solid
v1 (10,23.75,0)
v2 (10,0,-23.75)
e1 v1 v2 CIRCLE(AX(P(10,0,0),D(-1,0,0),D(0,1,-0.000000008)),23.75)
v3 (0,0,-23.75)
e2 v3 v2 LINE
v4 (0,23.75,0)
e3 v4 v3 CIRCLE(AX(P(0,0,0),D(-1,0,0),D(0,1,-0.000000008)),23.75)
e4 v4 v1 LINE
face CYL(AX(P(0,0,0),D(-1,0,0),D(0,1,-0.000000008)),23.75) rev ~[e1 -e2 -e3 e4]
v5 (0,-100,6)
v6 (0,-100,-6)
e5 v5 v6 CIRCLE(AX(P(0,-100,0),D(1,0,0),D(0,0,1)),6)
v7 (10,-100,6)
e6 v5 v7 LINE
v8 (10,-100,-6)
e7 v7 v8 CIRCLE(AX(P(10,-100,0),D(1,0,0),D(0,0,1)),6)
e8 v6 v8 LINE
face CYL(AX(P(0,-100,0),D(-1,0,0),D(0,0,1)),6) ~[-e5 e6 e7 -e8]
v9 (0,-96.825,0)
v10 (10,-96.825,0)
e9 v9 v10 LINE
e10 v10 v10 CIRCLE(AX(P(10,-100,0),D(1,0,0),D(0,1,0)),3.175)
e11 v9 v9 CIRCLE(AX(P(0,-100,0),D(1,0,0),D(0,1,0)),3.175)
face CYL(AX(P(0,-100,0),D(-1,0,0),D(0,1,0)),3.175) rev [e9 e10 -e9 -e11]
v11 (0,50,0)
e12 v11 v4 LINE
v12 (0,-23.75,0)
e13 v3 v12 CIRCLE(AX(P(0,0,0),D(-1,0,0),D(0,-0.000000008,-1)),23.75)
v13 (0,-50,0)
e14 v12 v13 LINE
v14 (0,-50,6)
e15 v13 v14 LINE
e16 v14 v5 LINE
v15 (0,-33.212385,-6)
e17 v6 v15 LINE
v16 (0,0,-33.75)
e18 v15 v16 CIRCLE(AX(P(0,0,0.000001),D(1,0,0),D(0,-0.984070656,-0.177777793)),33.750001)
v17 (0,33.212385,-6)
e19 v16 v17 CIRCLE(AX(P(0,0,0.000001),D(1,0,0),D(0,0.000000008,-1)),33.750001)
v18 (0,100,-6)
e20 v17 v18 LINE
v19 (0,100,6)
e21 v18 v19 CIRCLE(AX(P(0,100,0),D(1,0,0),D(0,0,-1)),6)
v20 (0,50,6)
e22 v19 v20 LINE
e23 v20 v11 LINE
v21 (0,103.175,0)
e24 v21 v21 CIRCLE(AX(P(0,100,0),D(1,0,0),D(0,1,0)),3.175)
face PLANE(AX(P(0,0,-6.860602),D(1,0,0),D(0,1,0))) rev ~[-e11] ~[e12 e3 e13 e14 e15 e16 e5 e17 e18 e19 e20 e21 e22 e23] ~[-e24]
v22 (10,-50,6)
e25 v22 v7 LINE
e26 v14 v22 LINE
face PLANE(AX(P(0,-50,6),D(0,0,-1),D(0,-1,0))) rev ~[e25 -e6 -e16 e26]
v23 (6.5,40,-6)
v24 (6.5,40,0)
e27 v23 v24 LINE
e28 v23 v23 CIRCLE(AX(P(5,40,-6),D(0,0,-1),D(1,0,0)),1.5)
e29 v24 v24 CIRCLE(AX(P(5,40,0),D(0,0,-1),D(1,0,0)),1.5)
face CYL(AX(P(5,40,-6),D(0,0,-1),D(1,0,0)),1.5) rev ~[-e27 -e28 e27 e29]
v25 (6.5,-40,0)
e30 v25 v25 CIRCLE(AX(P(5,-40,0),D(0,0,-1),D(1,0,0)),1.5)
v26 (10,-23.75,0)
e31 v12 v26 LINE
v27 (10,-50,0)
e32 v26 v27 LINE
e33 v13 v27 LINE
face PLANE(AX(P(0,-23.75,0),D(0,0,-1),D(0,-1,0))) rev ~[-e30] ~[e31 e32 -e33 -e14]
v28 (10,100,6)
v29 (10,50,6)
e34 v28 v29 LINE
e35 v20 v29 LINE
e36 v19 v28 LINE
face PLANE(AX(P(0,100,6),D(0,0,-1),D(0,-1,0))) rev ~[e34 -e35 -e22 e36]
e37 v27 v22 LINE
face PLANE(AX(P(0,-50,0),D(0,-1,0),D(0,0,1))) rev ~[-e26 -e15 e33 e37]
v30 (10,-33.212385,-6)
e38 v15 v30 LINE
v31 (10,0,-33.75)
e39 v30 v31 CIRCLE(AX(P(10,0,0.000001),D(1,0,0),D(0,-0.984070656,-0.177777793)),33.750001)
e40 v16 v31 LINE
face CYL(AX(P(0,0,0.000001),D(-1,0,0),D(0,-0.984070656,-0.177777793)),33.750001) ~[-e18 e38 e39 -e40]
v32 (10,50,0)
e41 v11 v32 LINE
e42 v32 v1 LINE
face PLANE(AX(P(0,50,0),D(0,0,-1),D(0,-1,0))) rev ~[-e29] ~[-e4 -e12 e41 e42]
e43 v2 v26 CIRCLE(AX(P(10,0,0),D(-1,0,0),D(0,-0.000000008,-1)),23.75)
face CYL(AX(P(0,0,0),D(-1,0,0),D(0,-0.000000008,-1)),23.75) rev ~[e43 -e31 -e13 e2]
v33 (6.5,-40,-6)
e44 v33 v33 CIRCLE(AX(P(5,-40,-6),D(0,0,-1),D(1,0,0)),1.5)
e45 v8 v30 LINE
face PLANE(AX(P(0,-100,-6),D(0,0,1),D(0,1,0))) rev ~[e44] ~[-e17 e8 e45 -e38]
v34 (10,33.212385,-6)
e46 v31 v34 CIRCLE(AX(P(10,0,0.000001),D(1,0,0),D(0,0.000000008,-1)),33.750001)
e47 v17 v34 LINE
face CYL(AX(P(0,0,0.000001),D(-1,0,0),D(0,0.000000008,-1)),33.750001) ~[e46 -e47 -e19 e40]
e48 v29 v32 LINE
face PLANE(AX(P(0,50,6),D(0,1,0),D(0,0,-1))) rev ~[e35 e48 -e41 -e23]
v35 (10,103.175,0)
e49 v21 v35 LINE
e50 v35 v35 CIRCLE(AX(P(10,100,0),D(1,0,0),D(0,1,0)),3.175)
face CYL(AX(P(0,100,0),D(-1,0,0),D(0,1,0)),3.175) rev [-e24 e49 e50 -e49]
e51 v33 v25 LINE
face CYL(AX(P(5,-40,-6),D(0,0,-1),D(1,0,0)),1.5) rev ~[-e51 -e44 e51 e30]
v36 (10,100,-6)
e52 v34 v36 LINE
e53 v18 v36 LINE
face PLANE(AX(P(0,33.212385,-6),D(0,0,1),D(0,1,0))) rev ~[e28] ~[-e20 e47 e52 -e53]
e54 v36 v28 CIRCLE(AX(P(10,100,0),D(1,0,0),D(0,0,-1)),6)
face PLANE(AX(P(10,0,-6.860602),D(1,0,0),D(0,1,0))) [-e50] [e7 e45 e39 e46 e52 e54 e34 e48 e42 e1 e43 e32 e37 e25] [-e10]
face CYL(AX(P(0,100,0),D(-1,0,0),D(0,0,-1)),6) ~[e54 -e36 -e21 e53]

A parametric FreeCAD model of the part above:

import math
import FreeCAD as App
import Part
import Sketcher
from FreeCAD import Vector

doc = App.newDocument("Part")
body = doc.addObject("PartDesign::Body", "Body")

sketch1 = body.newObject("Sketcher::SketchObject", "Sketch")
sketch1.AttachmentSupport = (doc.getObject("YZ_Plane"), [""])
sketch1.MapMode = "FlatFace"
sketch1.addGeometry(Part.ArcOfCircle(Part.Circle(Vector(0, 0, 0), Vector(0, 0, 1), 23.75), math.radians(-180), math.radians(-90)), False)
sketch1.addGeometry(Part.LineSegment(Vector(-23.75, 0, 0), Vector(-50, 0, 0)), False)
sketch1.addGeometry(Part.LineSegment(Vector(-50, 0, 0), Vector(-50, 6, 0)), False)
sketch1.addGeometry(Part.LineSegment(Vector(-50, 6, 0), Vector(-100, 6, 0)), False)
sketch1.addGeometry(Part.ArcOfCircle(Part.Circle(Vector(-100, 0, 0), Vector(0, 0, 1), 6), math.radians(90), math.radians(270)), False)
sketch1.addGeometry(Part.LineSegment(Vector(-100, -6, 0), Vector(-33.212385, -6, 0)), False)
sketch1.addGeometry(Part.ArcOfCircle(Part.Circle(Vector(0, 0.000001, 0), Vector(0, 0, 1), 33.750001), math.radians(-169.759651), math.radians(-90)), False)
sketch1.addGeometry(Part.ArcOfCircle(Part.Circle(Vector(0, 0.000001, 0), Vector(0, 0, 1), 33.750001), math.radians(-90), math.radians(-10.240349)), False)
sketch1.addGeometry(Part.LineSegment(Vector(33.212385, -6, 0), Vector(100, -6, 0)), False)
sketch1.addGeometry(Part.ArcOfCircle(Part.Circle(Vector(100, 0, 0), Vector(0, 0, 1), 6), math.radians(-90), math.radians(90)), False)
sketch1.addGeometry(Part.LineSegment(Vector(100, 6, 0), Vector(50, 6, 0)), False)
sketch1.addGeometry(Part.LineSegment(Vector(50, 6, 0), Vector(50, 0, 0)), False)
sketch1.addGeometry(Part.LineSegment(Vector(50, 0, 0), Vector(23.75, 0, 0)), False)
sketch1.addGeometry(Part.ArcOfCircle(Part.Circle(Vector(0, 0, 0), Vector(0, 0, 1), 23.75), math.radians(-90), math.radians(0)), False)
sketch1.addGeometry(Part.Circle(Vector(-100, 0, 0), Vector(0, 0, 1), 3.175), False)
sketch1.addGeometry(Part.Circle(Vector(100, 0, 0), Vector(0, 0, 1), 3.175), False)
sketch1.addConstraint(Sketcher.Constraint("Coincident", 0, 1, 1, 1))
sketch1.addConstraint(Sketcher.Constraint("Coincident", 1, 2, 2, 1))
sketch1.addConstraint(Sketcher.Constraint("Coincident", 2, 2, 3, 1))
sketch1.addConstraint(Sketcher.Constraint("Tangent", 3, 2, 4, 1))
sketch1.addConstraint(Sketcher.Constraint("Tangent", 4, 2, 5, 1))
sketch1.addConstraint(Sketcher.Constraint("Coincident", 5, 2, 6, 1))
sketch1.addConstraint(Sketcher.Constraint("Tangent", 6, 2, 7, 1))
sketch1.addConstraint(Sketcher.Constraint("Coincident", 7, 2, 8, 1))
sketch1.addConstraint(Sketcher.Constraint("Tangent", 8, 2, 9, 1))
sketch1.addConstraint(Sketcher.Constraint("Tangent", 9, 2, 10, 1))
sketch1.addConstraint(Sketcher.Constraint("Coincident", 10, 2, 11, 1))
sketch1.addConstraint(Sketcher.Constraint("Coincident", 11, 2, 12, 1))
sketch1.addConstraint(Sketcher.Constraint("Coincident", 12, 2, 13, 2))
sketch1.addConstraint(Sketcher.Constraint("Tangent", 13, 1, 0, 2))
sketch1.addConstraint(Sketcher.Constraint("Horizontal", 1))
sketch1.addConstraint(Sketcher.Constraint("Vertical", 2))
sketch1.addConstraint(Sketcher.Constraint("Horizontal", 3))
sketch1.addConstraint(Sketcher.Constraint("Horizontal", 5))
sketch1.addConstraint(Sketcher.Constraint("Horizontal", 8))
sketch1.addConstraint(Sketcher.Constraint("Horizontal", 10))
sketch1.addConstraint(Sketcher.Constraint("Vertical", 11))
sketch1.addConstraint(Sketcher.Constraint("Horizontal", 12))
sketch1.addConstraint(Sketcher.Constraint("Coincident", 0, 3, -1, 1))
sketch1.addConstraint(Sketcher.Constraint("Coincident", 6, 3, -1, 1))
sketch1.addConstraint(Sketcher.Constraint("Coincident", 14, 3, 4, 3))
sketch1.addConstraint(Sketcher.Constraint("Coincident", 15, 3, 9, 3))
sketch1.addConstraint(Sketcher.Constraint("Equal", 6, 7))
sketch1.addConstraint(Sketcher.Constraint("Equal", 4, 9))
sketch1.addConstraint(Sketcher.Constraint("Equal", 0, 13))
sketch1.addConstraint(Sketcher.Constraint("Equal", 14, 15))
sketch1.addConstraint(Sketcher.Constraint("Symmetric", 4, 3, 9, 3, -1, 1))
sketch1.addConstraint(Sketcher.Constraint("Symmetric", 1, 2, 11, 2, -1, 1))
sketch1.addConstraint(Sketcher.Constraint("PointOnObject", 4, 3, -1))
sketch1.addConstraint(Sketcher.Constraint("PointOnObject", 0, 1, -1))
sketch1.addConstraint(Sketcher.Constraint("PointOnObject", 6, 2, -2))
sketch1.addConstraint(Sketcher.Constraint("PointOnObject", 13, 1, -2))
sketch1.addConstraint(Sketcher.Constraint("Radius", 4, 6.0))
sketch1.addConstraint(Sketcher.Constraint("Diameter", 14, 6.35))
sketch1.addConstraint(Sketcher.Constraint("DistanceX", 3, 2, 3, 1, 50.0))
sketch1.addConstraint(Sketcher.Constraint("Radius", 0, 23.75))
sketch1.addConstraint(Sketcher.Constraint("Radius", 6, 33.750001))
sketch1.addConstraint(Sketcher.Constraint("DistanceX", 4, 3, -1, 1, 100.0))
pad1 = body.newObject("PartDesign::Pad", "Pad")
pad1.Profile = sketch1
pad1.Length = 10

sketch2 = body.newObject("Sketcher::SketchObject", "Sketch001")
sketch2.AttachmentSupport = (doc.getObject("XY_Plane"), [""])
sketch2.MapMode = "FlatFace"
sketch2.AttachmentOffset = App.Placement(Vector(0, 0, -6), App.Rotation())
sketch2.addGeometry(Part.Circle(Vector(5, -40, 0), Vector(0, 0, 1), 1.5), False)
sketch2.addGeometry(Part.Circle(Vector(5, 40, 0), Vector(0, 0, 1), 1.5), False)
sketch2.addConstraint(Sketcher.Constraint("Equal", 0, 1))
sketch2.addConstraint(Sketcher.Constraint("Symmetric", 0, 3, 1, 3, -1))
sketch2.addConstraint(Sketcher.Constraint("Diameter", 0, 3.0))
sketch2.addConstraint(Sketcher.Constraint("DistanceX", -1, 1, 0, 3, 5.0))
sketch2.addConstraint(Sketcher.Constraint("DistanceY", 0, 3, -1, 1, 40.0))
pocket1 = body.newObject("PartDesign::Pocket", "Pocket")
pocket1.Profile = sketch2
pocket1.Length = 25
pocket1.Reversed = True

doc.recompute()
